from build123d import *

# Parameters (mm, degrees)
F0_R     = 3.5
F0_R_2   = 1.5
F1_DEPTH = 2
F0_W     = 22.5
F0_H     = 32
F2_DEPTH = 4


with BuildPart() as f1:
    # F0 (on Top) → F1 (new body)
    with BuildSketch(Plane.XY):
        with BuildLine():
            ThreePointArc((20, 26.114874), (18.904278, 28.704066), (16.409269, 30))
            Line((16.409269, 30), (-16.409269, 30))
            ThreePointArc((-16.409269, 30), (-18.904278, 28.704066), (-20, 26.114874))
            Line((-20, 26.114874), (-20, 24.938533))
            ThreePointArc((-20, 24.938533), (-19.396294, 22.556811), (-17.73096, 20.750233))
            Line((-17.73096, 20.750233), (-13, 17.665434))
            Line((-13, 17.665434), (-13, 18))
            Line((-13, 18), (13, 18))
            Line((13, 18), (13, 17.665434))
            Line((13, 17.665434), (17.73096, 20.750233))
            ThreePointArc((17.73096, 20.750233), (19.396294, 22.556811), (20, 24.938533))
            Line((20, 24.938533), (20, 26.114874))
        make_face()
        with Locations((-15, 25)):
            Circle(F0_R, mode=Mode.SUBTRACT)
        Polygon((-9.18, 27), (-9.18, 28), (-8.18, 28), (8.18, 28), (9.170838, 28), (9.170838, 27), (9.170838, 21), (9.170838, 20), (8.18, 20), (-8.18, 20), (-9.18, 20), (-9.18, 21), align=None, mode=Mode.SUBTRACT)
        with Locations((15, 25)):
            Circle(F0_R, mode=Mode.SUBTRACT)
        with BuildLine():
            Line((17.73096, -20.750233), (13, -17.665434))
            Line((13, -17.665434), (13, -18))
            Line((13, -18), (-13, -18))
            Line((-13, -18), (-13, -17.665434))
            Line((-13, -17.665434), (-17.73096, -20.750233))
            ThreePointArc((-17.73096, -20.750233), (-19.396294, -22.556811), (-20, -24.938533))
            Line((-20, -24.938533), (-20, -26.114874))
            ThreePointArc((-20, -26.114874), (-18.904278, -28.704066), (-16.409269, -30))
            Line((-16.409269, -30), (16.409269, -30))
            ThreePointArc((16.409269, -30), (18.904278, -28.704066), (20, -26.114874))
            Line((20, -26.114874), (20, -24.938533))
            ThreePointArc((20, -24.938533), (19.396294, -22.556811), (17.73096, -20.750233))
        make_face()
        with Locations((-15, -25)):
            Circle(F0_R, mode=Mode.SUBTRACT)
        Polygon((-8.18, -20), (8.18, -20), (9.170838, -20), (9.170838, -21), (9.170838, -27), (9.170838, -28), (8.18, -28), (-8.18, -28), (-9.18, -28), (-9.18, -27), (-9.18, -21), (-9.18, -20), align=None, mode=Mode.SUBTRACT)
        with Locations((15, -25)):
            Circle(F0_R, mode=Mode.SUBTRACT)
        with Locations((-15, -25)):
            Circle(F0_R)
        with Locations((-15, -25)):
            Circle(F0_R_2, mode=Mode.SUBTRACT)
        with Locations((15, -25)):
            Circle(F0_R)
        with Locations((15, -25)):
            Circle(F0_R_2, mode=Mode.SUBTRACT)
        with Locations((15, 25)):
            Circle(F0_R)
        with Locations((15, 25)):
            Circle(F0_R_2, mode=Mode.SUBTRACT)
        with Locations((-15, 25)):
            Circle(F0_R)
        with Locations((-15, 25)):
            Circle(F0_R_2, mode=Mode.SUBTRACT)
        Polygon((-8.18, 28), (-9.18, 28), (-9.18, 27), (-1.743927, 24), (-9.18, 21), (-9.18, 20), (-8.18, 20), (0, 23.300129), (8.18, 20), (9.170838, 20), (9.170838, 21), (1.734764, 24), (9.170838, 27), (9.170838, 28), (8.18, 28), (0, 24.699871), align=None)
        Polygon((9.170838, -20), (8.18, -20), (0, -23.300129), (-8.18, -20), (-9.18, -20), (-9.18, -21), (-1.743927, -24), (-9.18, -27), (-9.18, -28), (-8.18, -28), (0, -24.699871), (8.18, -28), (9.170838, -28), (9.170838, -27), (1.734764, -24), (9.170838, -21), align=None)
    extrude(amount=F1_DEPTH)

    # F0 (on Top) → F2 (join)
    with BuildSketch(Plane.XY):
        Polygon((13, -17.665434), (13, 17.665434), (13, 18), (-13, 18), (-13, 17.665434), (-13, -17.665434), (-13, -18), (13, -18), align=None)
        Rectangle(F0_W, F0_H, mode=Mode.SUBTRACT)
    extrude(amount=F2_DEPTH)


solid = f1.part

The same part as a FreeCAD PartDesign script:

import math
import FreeCAD as App
import Part
import Sketcher

V = App.Vector
Q = App.Units.Quantity

doc = App.newDocument("Part")
body = doc.addObject("PartDesign::Body", "Body")
body.AllowCompound = True

# Sketch on XY plane
sketch1 = body.newObject("Sketcher::SketchObject", "Sketch")
sketch1.AttachmentSupport = (doc.getObject("XY_Plane"), [""])
sketch1.MapMode = "FlatFace"
sketch1.addGeometry(Part.ArcOfCircle(Part.Circle(V(15.86, 25.89, 0), V(0, 0, 1), 4.15), math.radians(3), math.radians(82)), False)
sketch1.addGeometry(Part.LineSegment(V(16.41, 30, 0), V(-16.41, 30, 0)), False)
sketch1.addGeometry(Part.ArcOfCircle(Part.Circle(V(-15.86, 25.89, 0), V(0, 0, 1), 4.15), math.radians(98), math.radians(177)), False)
sketch1.addGeometry(Part.LineSegment(V(-20, 26.11, 0), V(-20, 24.94, 0)), False)
sketch1.addGeometry(Part.ArcOfCircle(Part.Circle(V(-15, 24.94, 0), V(0, 0, 1), 5), math.radians(180), math.radians(237)), False)
sketch1.addGeometry(Part.LineSegment(V(-17.73, 20.75, 0), V(-13, 17.67, 0)), False)
sketch1.addGeometry(Part.LineSegment(V(-13, 17.67, 0), V(-13, 18, 0)), False)
sketch1.addGeometry(Part.LineSegment(V(-13, 18, 0), V(13, 18, 0)), False)
sketch1.addGeometry(Part.LineSegment(V(13, 18, 0), V(13, 17.67, 0)), False)
sketch1.addGeometry(Part.LineSegment(V(13, 17.67, 0), V(17.73, 20.75, 0)), False)
sketch1.addGeometry(Part.ArcOfCircle(Part.Circle(V(15, 24.94, 0), V(0, 0, 1), 5), math.radians(-57), math.radians(0)), False)
sketch1.addGeometry(Part.LineSegment(V(20, 24.94, 0), V(20, 26.11, 0)), False)
sketch1.addGeometry(Part.Circle(V(-15, 25, 0), V(0, 0, 1), 1.5), False)
sketch1.addGeometry(Part.LineSegment(V(-9.18, 21, 0), V(-9.18, 27, 0)), False)
sketch1.addGeometry(Part.LineSegment(V(-9.18, 27, 0), V(-1.74, 24, 0)), False)
sketch1.addGeometry(Part.LineSegment(V(-1.74, 24, 0), V(-9.18, 21, 0)), False)
sketch1.addGeometry(Part.LineSegment(V(8.18, 20, 0), V(-8.18, 20, 0)), False)
sketch1.addGeometry(Part.LineSegment(V(-8.18, 20, 0), V(0, 23.3, 0)), False)
sketch1.addGeometry(Part.LineSegment(V(0, 23.3, 0), V(8.18, 20, 0)), False)
sketch1.addGeometry(Part.LineSegment(V(-8.18, 28, 0), V(8.18, 28, 0)), False)
sketch1.addGeometry(Part.LineSegment(V(8.18, 28, 0), V(0, 24.7, 0)), False)
sketch1.addGeometry(Part.LineSegment(V(0, 24.7, 0), V(-8.18, 28, 0)), False)
sketch1.addGeometry(Part.LineSegment(V(9.17, 27, 0), V(9.17, 21, 0)), False)
sketch1.addGeometry(Part.LineSegment(V(9.17, 21, 0), V(1.73, 24, 0)), False)
sketch1.addGeometry(Part.LineSegment(V(1.73, 24, 0), V(9.17, 27, 0)), False)
sketch1.addGeometry(Part.Circle(V(15, 25, 0), V(0, 0, 1), 1.5), False)
sketch1.addGeometry(Part.LineSegment(V(17.73, -20.75, 0), V(13, -17.67, 0)), False)
sketch1.addGeometry(Part.LineSegment(V(13, -17.67, 0), V(13, -18, 0)), False)
sketch1.addGeometry(Part.LineSegment(V(13, -18, 0), V(-13, -18, 0)), False)
sketch1.addGeometry(Part.LineSegment(V(-13, -18, 0), V(-13, -17.67, 0)), False)
sketch1.addGeometry(Part.LineSegment(V(-13, -17.67, 0), V(-17.73, -20.75, 0)), False)
sketch1.addGeometry(Part.ArcOfCircle(Part.Circle(V(-15, -24.94, 0), V(0, 0, 1), 5), math.radians(123), math.radians(180)), False)
sketch1.addGeometry(Part.LineSegment(V(-20, -24.94, 0), V(-20, -26.11, 0)), False)
sketch1.addGeometry(Part.ArcOfCircle(Part.Circle(V(-15.86, -25.89, 0), V(0, 0, 1), 4.15), math.radians(-177), math.radians(-98)), False)
sketch1.addGeometry(Part.LineSegment(V(-16.41, -30, 0), V(16.41, -30, 0)), False)
sketch1.addGeometry(Part.ArcOfCircle(Part.Circle(V(15.86, -25.89, 0), V(0, 0, 1), 4.15), math.radians(-82), math.radians(-3)), False)
sketch1.addGeometry(Part.LineSegment(V(20, -26.11, 0), V(20, -24.94, 0)), False)
sketch1.addGeometry(Part.ArcOfCircle(Part.Circle(V(15, -24.94, 0), V(0, 0, 1), 5), math.radians(0), math.radians(57)), False)
sketch1.addGeometry(Part.Circle(V(-15, -25, 0), V(0, 0, 1), 1.5), False)
sketch1.addGeometry(Part.Circle(V(15, -25, 0), V(0, 0, 1), 1.5), False)
sketch1.addGeometry(Part.LineSegment(V(-8.18, -20, 0), V(8.18, -20, 0)), False)
sketch1.addGeometry(Part.LineSegment(V(8.18, -20, 0), V(0, -23.3, 0)), False)
sketch1.addGeometry(Part.LineSegment(V(0, -23.3, 0), V(-8.18, -20, 0)), False)
sketch1.addGeometry(Part.LineSegment(V(-9.18, -27, 0), V(-9.18, -21, 0)), False)
sketch1.addGeometry(Part.LineSegment(V(-9.18, -21, 0), V(-1.74, -24, 0)), False)
sketch1.addGeometry(Part.LineSegment(V(-1.74, -24, 0), V(-9.18, -27, 0)), False)
sketch1.addGeometry(Part.LineSegment(V(9.17, -21, 0), V(9.17, -27, 0)), False)
sketch1.addGeometry(Part.LineSegment(V(9.17, -27, 0), V(1.73, -24, 0)), False)
sketch1.addGeometry(Part.LineSegment(V(1.73, -24, 0), V(9.17, -21, 0)), False)
sketch1.addGeometry(Part.LineSegment(V(8.18, -28, 0), V(-8.18, -28, 0)), False)
sketch1.addGeometry(Part.LineSegment(V(-8.18, -28, 0), V(0, -24.7, 0)), False)
sketch1.addGeometry(Part.LineSegment(V(0, -24.7, 0), V(8.18, -28, 0)), False)
sketch1.addConstraint(Sketcher.Constraint("Coincident", 0, 2, 1, 1))
sketch1.addConstraint(Sketcher.Constraint("Coincident", 1, 2, 2, 1))
sketch1.addConstraint(Sketcher.Constraint("Coincident", 2, 2, 3, 1))
sketch1.addConstraint(Sketcher.Constraint("Tangent", 3, 2, 4, 1))
sketch1.addConstraint(Sketcher.Constraint("Tangent", 4, 2, 5, 1))
sketch1.addConstraint(Sketcher.Constraint("Coincident", 5, 2, 6, 1))
sketch1.addConstraint(Sketcher.Constraint("Coincident", 6, 2, 7, 1))
sketch1.addConstraint(Sketcher.Constraint("Coincident", 7, 2, 8, 1))
sketch1.addConstraint(Sketcher.Constraint("Coincident", 8, 2, 9, 1))
sketch1.addConstraint(Sketcher.Constraint("Tangent", 9, 2, 10, 1))
sketch1.addConstraint(Sketcher.Constraint("Tangent", 10, 2, 11, 1))
sketch1.addConstraint(Sketcher.Constraint("Coincident", 11, 2, 0, 1))
sketch1.addConstraint(Sketcher.Constraint("Coincident", 13, 2, 14, 1))
sketch1.addConstraint(Sketcher.Constraint("Coincident", 14, 2, 15, 1))
sketch1.addConstraint(Sketcher.Constraint("Coincident", 15, 2, 13, 1))
sketch1.addConstraint(Sketcher.Constraint("Coincident", 16, 2, 17, 1))
sketch1.addConstraint(Sketcher.Constraint("Coincident", 17, 2, 18, 1))
sketch1.addConstraint(Sketcher.Constraint("Coincident", 18, 2, 16, 1))
sketch1.addConstraint(Sketcher.Constraint("Coincident", 19, 2, 20, 1))
sketch1.addConstraint(Sketcher.Constraint("Coincident", 20, 2, 21, 1))
sketch1.addConstraint(Sketcher.Constraint("Coincident", 21, 2, 19, 1))
sketch1.addConstraint(Sketcher.Constraint("Coincident", 22, 2, 23, 1))
sketch1.addConstraint(Sketcher.Constraint("Coincident", 23, 2, 24, 1))
sketch1.addConstraint(Sketcher.Constraint("Coincident", 24, 2, 22, 1))
sketch1.addConstraint(Sketcher.Constraint("Coincident", 26, 2, 27, 1))
sketch1.addConstraint(Sketcher.Constraint("Coincident", 27, 2, 28, 1))
sketch1.addConstraint(Sketcher.Constraint("Coincident", 28, 2, 29, 1))
sketch1.addConstraint(Sketcher.Constraint("Coincident", 29, 2, 30, 1))
sketch1.addConstraint(Sketcher.Constraint("Tangent", 30, 2, 31, 1))
sketch1.addConstraint(Sketcher.Constraint("Tangent", 31, 2, 32, 1))
sketch1.addConstraint(Sketcher.Constraint("Coincident", 32, 2, 33, 1))
sketch1.addConstraint(Sketcher.Constraint("Coincident", 33, 2, 34, 1))
sketch1.addConstraint(Sketcher.Constraint("Coincident", 34, 2, 35, 1))
sketch1.addConstraint(Sketcher.Constraint("Coincident", 35, 2, 36, 1))
sketch1.addConstraint(Sketcher.Constraint("Tangent", 36, 2, 37, 1))
sketch1.addConstraint(Sketcher.Constraint("Tangent", 37, 2, 26, 1))
sketch1.addConstraint(Sketcher.Constraint("Coincident", 40, 2, 41, 1))
sketch1.addConstraint(Sketcher.Constraint("Coincident", 41, 2, 42, 1))
sketch1.addConstraint(Sketcher.Constraint("Coincident", 42, 2, 40, 1))
sketch1.addConstraint(Sketcher.Constraint("Coincident", 43, 2, 44, 1))
sketch1.addConstraint(Sketcher.Constraint("Coincident", 44, 2, 45, 1))
sketch1.addConstraint(Sketcher.Constraint("Coincident", 45, 2, 43, 1))
sketch1.addConstraint(Sketcher.Constraint("Coincident", 46, 2, 47, 1))
sketch1.addConstraint(Sketcher.Constraint("Coincident", 47, 2, 48, 1))
sketch1.addConstraint(Sketcher.Constraint("Coincident", 48, 2, 46, 1))
sketch1.addConstraint(Sketcher.Constraint("Coincident", 49, 2, 50, 1))
sketch1.addConstraint(Sketcher.Constraint("Coincident", 50, 2, 51, 1))
sketch1.addConstraint(Sketcher.Constraint("Coincident", 51, 2, 49, 1))
sketch1.addConstraint(Sketcher.Constraint("Horizontal", 1))
sketch1.addConstraint(Sketcher.Constraint("Vertical", 3))
sketch1.addConstraint(Sketcher.Constraint("Vertical", 6))
sketch1.addConstraint(Sketcher.Constraint("Horizontal", 7))
sketch1.addConstraint(Sketcher.Constraint("Vertical", 8))
sketch1.addConstraint(Sketcher.Constraint("Vertical", 11))
sketch1.addConstraint(Sketcher.Constraint("Vertical", 13))
sketch1.addConstraint(Sketcher.Constraint("Horizontal", 16))
sketch1.addConstraint(Sketcher.Constraint("Horizontal", 19))
sketch1.addConstraint(Sketcher.Constraint("Vertical", 22))
sketch1.addConstraint(Sketcher.Constraint("Vertical", 27))
sketch1.addConstraint(Sketcher.Constraint("Horizontal", 28))
sketch1.addConstraint(Sketcher.Constraint("Vertical", 29))
sketch1.addConstraint(Sketcher.Constraint("Vertical", 32))
sketch1.addConstraint(Sketcher.Constraint("Horizontal", 34))
sketch1.addConstraint(Sketcher.Constraint("Vertical", 36))
sketch1.addConstraint(Sketcher.Constraint("Horizontal", 40))
sketch1.addConstraint(Sketcher.Constraint("Vertical", 43))
sketch1.addConstraint(Sketcher.Constraint("Vertical", 46))
sketch1.addConstraint(Sketcher.Constraint("Horizontal", 49))
sketch1.addConstraint(Sketcher.Constraint("Equal", 0, 2))
sketch1.addConstraint(Sketcher.Constraint("Equal", 4, 10))
sketch1.addConstraint(Sketcher.Constraint("Equal", 12, 25))
sketch1.addConstraint(Sketcher.Constraint("Equal", 10, 31))
sketch1.addConstraint(Sketcher.Constraint("Equal", 2, 33))
sketch1.addConstraint(Sketcher.Constraint("Equal", 33, 35))
sketch1.addConstraint(Sketcher.Constraint("Equal", 31, 37))
sketch1.addConstraint(Sketcher.Constraint("Equal", 25, 38))
sketch1.addConstraint(Sketcher.Constraint("Equal", 38, 39))
sketch1.addConstraint(Sketcher.Constraint("Symmetric", 10, 3, 31, 3, -1, 1))
sketch1.addConstraint(Sketcher.Constraint("Symmetric", 0, 3, 33, 3, -1, 1))
sketch1.addConstraint(Sketcher.Constraint("Symmetric", 2, 3, 35, 3, -1, 1))
sketch1.addConstraint(Sketcher.Constraint("Symmetric", 4, 3, 37, 3, -1, 1))
sketch1.addConstraint(Sketcher.Constraint("Symmetric", 25, 3, 38, 3, -1, 1))
sketch1.addConstraint(Sketcher.Constraint("Symmetric", 12, 3, 39, 3, -1, 1))
sketch1.addConstraint(Sketcher.Constraint("Symmetric", 5, 2, 26, 2, -1, 1))
sketch1.addConstraint(Sketcher.Constraint("Symmetric", 7, 2, 28, 2, -1, 1))
sketch1.addConstraint(Sketcher.Constraint("Symmetric", 16, 2, 40, 2, -1, 1))
sketch1.addConstraint(Sketcher.Constraint("Symmetric", 17, 2, 41, 2, -1, 1))
sketch1.addConstraint(Sketcher.Constraint("Symmetric", 19, 2, 49, 2, -1, 1))
sketch1.addConstraint(Sketcher.Constraint("Symmetric", 20, 2, 50, 2, -1, 1))
sketch1.addConstraint(Sketcher.Constraint("Symmetric", 0, 3, 2, 3, -2))
sketch1.addConstraint(Sketcher.Constraint("Symmetric", 4, 3, 10, 3, -2))
sketch1.addConstraint(Sketcher.Constraint("Symmetric", 12, 3, 25, 3, -2))
sketch1.addConstraint(Sketcher.Constraint("Symmetric", 5, 2, 8, 2, -2))
sketch1.addConstraint(Sketcher.Constraint("Symmetric", 15, 2, 43, 2, -1))
sketch1.addConstraint(Sketcher.Constraint("Symmetric", 14, 2, 44, 2, -1))
sketch1.addConstraint(Sketcher.Constraint("Symmetric", 24, 2, 46, 2, -1))
sketch1.addConstraint(Sketcher.Constraint("Symmetric", 23, 2, 47, 2, -1))
sketch1.addConstraint(Sketcher.Constraint("PointOnObject", 17, 2, -2))
sketch1.addConstraint(Sketcher.Constraint("PointOnObject", 20, 2, -2))
sketch1.addConstraint(Sketcher.Constraint("Parallel", 15, 17))
sketch1.addConstraint(Sketcher.Constraint("Parallel", 14, 18))
sketch1.addConstraint(Sketcher.Constraint("Parallel", 17, 20))
sketch1.addConstraint(Sketcher.Constraint("Parallel", 18, 21))
sketch1.addConstraint(Sketcher.Constraint("Parallel", 21, 23))
sketch1.addConstraint(Sketcher.Constraint("Parallel", 20, 24))
sketch1.addConstraint(Sketcher.Constraint("Parallel", 9, 30))
sketch1.addConstraint(Sketcher.Constraint("Parallel", 23, 42))
sketch1.addConstraint(Sketcher.Constraint("Parallel", 42, 44))
sketch1.addConstraint(Sketcher.Constraint("Parallel", 41, 45))
sketch1.addConstraint(Sketcher.Constraint("Parallel", 45, 48))
sketch1.addConstraint(Sketcher.Constraint("Parallel", 47, 51))
sketch1.addConstraint(Sketcher.Constraint("Horizontal", 15, 2, 22, 2))
sketch1.addConstraint(Sketcher.Constraint("Horizontal", 14, 2, 23, 2))
sketch1.addConstraint(Sketcher.Constraint("Vertical", 4, 3, 12, 3))
sketch1.addConstraint(Sketcher.Constraint("Vertical", 18, 2, 19, 2))
sketch1.addConstraint(Sketcher.Constraint("Vertical", 1, 2, 33, 2))
sketch1.addConstraint(Sketcher.Constraint("Diameter", 12, Q("3 mm")))
sketch1.addConstraint(Sketcher.Constraint("Radius", 4, Q("4.999999 mm")))
sketch1.addConstraint(Sketcher.Constraint("DistanceX", 7, 1, 7, 2, Q("26 mm")))
sketch1.addConstraint(Sketcher.Constraint("DistanceY", 13, 1, 13, 2, Q("6 mm")))
sketch1.addConstraint(Sketcher.Constraint("DistanceX", 4, 3, -1, 1, Q("15.000001 mm")))
sketch1.addConstraint(Sketcher.Constraint("DistanceY", -1, 1, 12, 3, Q("25 mm")))
sketch1.addConstraint(Sketcher.Constraint("DistanceY", -1, 1, 0, 2, Q("30 mm")))
sketch1.addConstraint(Sketcher.Constraint("DistanceY", -1, 1, 6, 2, Q("18 mm")))
sketch1.addConstraint(Sketcher.Constraint("DistanceY", -1, 1, 13, 2, Q("27 mm")))
sketch1.addConstraint(Sketcher.Constraint("DistanceY", -1, 1, 16, 2, Q("20 mm")))
sketch1.addConstraint(Sketcher.Constraint("DistanceY", -1, 1, 19, 2, Q("28 mm")))
sketch1.addConstraint(Sketcher.Constraint("DistanceX", 15, 2, 16, 2, Q("1 mm")))
sketch1.addConstraint(Sketcher.Constraint("DistanceX", 16, 2, 16, 1, Q("16.36 mm")))
sketch1.addConstraint(Sketcher.Constraint("Radius", 0, Q("4.148499 mm")))
sketch1.addConstraint(Sketcher.Constraint("DistanceY", 3, 2, 3, 1, Q("1.176341 mm")))
sketch1.addConstraint(Sketcher.Constraint("DistanceY", 4, 3, 2, 3, Q("0.9498 mm")))
sketch1.addConstraint(Sketcher.Constraint("DistanceY", 4, 2, 3, 2, Q("4.1883 mm")))
sketch1.addConstraint(Sketcher.Constraint("Distance", 23, Q("8.018429 mm")))
sketch1.addConstraint(Sketcher.Constraint("DistanceX", 1, 2, 1, 1, Q("32.818538 mm")))
sketch1.addConstraint(Sketcher.Constraint("DistanceX", 18, 2, 22, 2, Q("0.990838 mm")))
pad1 = body.newObject("PartDesign::Pad", "Pad")
pad1.Profile = sketch1
pad1.Length = 2

# Sketch on XY plane
sketch2 = body.newObject("Sketcher::SketchObject", "Sketch001")
sketch2.AttachmentSupport = (doc.getObject("XY_Plane"), [""])
sketch2.MapMode = "FlatFace"
sketch2.addGeometry(Part.LineSegment(V(13, 18, 0), V(-13, 18, 0)), False)
sketch2.addGeometry(Part.LineSegment(V(-13, 18, 0), V(-13, -18, 0)), False)
sketch2.addGeometry(Part.LineSegment(V(-13, -18, 0), V(13, -18, 0)), False)
sketch2.addGeometry(Part.LineSegment(V(13, -18, 0), V(13, 18, 0)), False)
sketch2.addGeometry(Part.LineSegment(V(11, -16, 0), V(-11, -16, 0)), False)
sketch2.addGeometry(Part.LineSegment(V(-11, -16, 0), V(-11, 16, 0)), False)
sketch2.addGeometry(Part.LineSegment(V(-11, 16, 0), V(11, 16, 0)), False)
sketch2.addGeometry(Part.LineSegment(V(11, 16, 0), V(11, -16, 0)), False)
sketch2.addConstraint(Sketcher.Constraint("Coincident", 0, 2, 1, 1))
sketch2.addConstraint(Sketcher.Constraint("Coincident", 1, 2, 2, 1))
sketch2.addConstraint(Sketcher.Constraint("Coincident", 2, 2, 3, 1))
sketch2.addConstraint(Sketcher.Constraint("Coincident", 3, 2, 0, 1))
sketch2.addConstraint(Sketcher.Constraint("Coincident", 4, 2, 5, 1))
sketch2.addConstraint(Sketcher.Constraint("Coincident", 5, 2, 6, 1))
sketch2.addConstraint(Sketcher.Constraint("Coincident", 6, 2, 7, 1))
sketch2.addConstraint(Sketcher.Constraint("Coincident", 7, 2, 4, 1))
sketch2.addConstraint(Sketcher.Constraint("Horizontal", 0))
sketch2.addConstraint(Sketcher.Constraint("Vertical", 1))
sketch2.addConstraint(Sketcher.Constraint("Horizontal", 2))
sketch2.addConstraint(Sketcher.Constraint("Vertical", 3))
sketch2.addConstraint(Sketcher.Constraint("Horizontal", 4))
sketch2.addConstraint(Sketcher.Constraint("Vertical", 5))
sketch2.addConstraint(Sketcher.Constraint("Horizontal", 6))
sketch2.addConstraint(Sketcher.Constraint("Vertical", 7))
sketch2.addConstraint(Sketcher.Constraint("Symmetric", 0, 2, 2, 2, -1, 1))
sketch2.addConstraint(Sketcher.Constraint("Symmetric", 4, 2, 6, 2, -1, 1))
sketch2.addConstraint(Sketcher.Constraint("DistanceX", 0, 2, 0, 1, Q("26 mm")))
sketch2.addConstraint(Sketcher.Constraint("DistanceY", 1, 2, 1, 1, Q("36 mm")))
sketch2.addConstraint(Sketcher.Constraint("DistanceY", 5, 1, 5, 2, Q("32 mm")))
sketch2.addConstraint(Sketcher.Constraint("DistanceX", 4, 2, 4, 1, Q("22.5 mm")))
pad2 = body.newObject("PartDesign::Pad", "Pad001")
pad2.Profile = sketch2
pad2.Length = 4

doc.recompute()
